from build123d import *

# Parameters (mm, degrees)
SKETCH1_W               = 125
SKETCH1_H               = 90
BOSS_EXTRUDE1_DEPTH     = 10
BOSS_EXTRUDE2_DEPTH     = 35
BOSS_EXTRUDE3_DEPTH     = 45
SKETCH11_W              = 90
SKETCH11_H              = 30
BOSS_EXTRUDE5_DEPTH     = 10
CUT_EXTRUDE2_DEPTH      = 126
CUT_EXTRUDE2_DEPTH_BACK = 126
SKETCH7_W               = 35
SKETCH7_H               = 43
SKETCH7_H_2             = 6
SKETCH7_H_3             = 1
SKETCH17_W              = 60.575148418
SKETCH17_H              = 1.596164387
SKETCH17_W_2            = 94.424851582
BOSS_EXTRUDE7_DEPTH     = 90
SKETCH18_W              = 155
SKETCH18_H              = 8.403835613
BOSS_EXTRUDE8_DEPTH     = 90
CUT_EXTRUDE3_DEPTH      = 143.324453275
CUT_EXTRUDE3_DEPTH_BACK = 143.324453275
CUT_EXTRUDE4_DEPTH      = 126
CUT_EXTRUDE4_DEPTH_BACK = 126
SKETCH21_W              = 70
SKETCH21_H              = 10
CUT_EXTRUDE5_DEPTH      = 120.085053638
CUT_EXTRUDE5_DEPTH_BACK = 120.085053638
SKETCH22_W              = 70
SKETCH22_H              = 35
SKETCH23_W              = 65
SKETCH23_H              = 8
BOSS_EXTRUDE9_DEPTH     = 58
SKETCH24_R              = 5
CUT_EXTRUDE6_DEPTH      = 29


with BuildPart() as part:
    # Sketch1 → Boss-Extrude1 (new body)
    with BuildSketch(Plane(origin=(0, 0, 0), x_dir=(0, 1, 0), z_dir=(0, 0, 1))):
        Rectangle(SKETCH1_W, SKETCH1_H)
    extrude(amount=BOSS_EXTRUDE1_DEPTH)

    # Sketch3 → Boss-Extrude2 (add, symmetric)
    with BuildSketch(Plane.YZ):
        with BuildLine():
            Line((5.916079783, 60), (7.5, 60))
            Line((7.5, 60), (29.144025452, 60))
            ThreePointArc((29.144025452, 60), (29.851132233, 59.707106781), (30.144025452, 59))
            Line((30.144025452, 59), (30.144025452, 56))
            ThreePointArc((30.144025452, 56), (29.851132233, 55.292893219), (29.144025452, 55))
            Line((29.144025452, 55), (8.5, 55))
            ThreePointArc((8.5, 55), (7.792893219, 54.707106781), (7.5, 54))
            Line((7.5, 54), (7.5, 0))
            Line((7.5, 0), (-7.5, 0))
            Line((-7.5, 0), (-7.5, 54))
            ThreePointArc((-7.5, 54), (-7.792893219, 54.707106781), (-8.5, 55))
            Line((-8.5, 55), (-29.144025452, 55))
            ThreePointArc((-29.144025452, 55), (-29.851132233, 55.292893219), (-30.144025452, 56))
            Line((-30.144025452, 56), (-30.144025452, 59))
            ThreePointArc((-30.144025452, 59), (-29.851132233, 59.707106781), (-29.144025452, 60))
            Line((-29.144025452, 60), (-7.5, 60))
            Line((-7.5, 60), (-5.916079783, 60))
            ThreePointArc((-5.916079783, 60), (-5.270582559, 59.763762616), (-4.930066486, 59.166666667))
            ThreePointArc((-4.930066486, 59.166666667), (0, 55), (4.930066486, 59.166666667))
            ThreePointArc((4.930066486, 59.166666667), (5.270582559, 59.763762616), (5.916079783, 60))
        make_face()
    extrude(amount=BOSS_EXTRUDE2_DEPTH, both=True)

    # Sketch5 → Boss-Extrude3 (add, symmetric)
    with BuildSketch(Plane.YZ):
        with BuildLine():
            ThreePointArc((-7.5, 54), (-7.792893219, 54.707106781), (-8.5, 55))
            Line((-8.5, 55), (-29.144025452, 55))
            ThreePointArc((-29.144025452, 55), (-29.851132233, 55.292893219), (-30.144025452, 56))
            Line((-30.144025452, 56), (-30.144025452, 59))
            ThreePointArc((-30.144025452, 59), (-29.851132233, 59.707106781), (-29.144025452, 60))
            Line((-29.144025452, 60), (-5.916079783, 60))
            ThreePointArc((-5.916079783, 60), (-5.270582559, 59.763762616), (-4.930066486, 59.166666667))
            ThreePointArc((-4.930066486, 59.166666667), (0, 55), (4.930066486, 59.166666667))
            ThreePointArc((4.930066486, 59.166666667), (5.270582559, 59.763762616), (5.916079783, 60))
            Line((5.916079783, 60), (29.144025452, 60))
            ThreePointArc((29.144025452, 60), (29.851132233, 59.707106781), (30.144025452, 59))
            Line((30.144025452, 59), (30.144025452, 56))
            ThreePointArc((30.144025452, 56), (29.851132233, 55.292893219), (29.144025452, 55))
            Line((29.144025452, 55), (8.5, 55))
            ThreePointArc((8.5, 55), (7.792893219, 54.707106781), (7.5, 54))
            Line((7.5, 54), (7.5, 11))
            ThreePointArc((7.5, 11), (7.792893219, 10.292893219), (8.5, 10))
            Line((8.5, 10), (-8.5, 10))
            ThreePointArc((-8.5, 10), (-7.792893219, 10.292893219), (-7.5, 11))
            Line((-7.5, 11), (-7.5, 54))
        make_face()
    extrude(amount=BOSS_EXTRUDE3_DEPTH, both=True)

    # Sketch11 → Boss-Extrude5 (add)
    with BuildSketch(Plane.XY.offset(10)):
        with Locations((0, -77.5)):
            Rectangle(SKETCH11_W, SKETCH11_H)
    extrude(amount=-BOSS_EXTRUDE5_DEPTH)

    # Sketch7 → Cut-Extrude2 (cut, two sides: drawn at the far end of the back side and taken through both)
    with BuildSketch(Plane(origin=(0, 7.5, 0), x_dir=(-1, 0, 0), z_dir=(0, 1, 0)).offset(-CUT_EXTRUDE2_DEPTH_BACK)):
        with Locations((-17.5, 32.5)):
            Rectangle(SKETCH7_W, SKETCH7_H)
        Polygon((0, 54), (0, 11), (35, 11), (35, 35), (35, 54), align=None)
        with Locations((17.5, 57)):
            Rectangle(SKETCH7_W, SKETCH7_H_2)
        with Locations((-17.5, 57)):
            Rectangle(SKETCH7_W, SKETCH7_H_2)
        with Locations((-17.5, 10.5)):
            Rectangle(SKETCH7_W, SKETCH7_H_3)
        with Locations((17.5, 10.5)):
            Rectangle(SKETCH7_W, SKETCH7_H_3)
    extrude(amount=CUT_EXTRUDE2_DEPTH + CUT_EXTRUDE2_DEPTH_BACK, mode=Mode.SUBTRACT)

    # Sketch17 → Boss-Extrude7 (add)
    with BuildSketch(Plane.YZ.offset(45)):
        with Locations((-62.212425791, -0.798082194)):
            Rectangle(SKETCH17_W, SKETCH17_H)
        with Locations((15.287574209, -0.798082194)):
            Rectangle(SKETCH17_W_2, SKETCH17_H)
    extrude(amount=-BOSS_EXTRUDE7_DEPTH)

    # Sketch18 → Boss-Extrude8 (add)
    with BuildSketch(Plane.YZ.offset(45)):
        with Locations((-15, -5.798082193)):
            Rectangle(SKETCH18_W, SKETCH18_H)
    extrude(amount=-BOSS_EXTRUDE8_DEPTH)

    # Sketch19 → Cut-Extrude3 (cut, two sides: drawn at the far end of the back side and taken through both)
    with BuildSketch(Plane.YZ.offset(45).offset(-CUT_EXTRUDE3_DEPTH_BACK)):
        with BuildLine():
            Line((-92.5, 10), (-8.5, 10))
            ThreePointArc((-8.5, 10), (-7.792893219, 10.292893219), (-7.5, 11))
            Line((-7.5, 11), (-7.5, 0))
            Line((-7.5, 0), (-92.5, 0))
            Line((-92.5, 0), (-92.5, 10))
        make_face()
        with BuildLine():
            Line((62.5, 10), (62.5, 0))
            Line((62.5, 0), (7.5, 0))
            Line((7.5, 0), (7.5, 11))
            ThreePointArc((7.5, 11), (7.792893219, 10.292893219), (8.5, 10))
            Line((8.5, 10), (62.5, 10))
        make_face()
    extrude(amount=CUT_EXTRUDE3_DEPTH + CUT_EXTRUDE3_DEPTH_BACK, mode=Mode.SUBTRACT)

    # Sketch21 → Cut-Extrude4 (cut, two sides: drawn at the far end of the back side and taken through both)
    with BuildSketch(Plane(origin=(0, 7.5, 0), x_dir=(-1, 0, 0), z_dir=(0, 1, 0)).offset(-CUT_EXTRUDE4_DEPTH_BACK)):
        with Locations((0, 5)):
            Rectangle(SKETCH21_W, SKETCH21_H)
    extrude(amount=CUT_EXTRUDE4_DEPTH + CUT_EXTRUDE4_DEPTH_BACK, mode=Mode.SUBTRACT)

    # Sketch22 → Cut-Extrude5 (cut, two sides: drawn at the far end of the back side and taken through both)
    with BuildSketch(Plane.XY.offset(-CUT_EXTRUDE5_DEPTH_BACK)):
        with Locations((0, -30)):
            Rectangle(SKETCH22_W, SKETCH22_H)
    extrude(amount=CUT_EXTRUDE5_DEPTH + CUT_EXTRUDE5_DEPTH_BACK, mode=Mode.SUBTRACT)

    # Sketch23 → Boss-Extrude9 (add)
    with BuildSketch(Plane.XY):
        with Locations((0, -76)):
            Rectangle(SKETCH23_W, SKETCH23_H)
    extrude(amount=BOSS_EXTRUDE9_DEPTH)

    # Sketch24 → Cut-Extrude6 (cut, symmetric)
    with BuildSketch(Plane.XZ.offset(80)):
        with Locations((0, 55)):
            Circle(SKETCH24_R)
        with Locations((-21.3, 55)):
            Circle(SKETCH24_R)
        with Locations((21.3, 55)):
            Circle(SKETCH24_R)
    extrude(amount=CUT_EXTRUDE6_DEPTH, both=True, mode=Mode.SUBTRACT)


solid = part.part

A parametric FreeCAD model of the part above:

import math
import FreeCAD as App
import Part
import Sketcher
from FreeCAD import Vector


def add_polygon(sketch, points):
    """Adds a closed chain of lines whose ends are joined by coincident constraints."""
    first, n = sketch.GeometryCount, len(points)
    for a, b in zip(points, points[1:] + points[:1]):
        sketch.addGeometry(Part.LineSegment(App.Vector(*a, 0), App.Vector(*b, 0)), False)
    for i in range(n):
        sketch.addConstraint(Sketcher.Constraint("Coincident", first + i, 2, first + (i + 1) % n, 1))

doc = App.newDocument("Part")
params = doc.addObject("Spreadsheet::Sheet", "Params")
for row, (alias, value) in enumerate([
    ("sketch1_width", "90 mm"),
    ("sketch1_height", "125 mm"),
    ("pad1_length", "10 mm"),
    ("sketch2_radius", "1 mm"),
    ("sketch2_radius2", "5 mm"),
    ("sketch2_width", "15 mm"),
    ("sketch2_height", "3 mm"),
    ("sketch2_height2", "54 mm"),
    ("pad2_length", "70 mm"),
    ("sketch3_radius", "1 mm"),
    ("sketch3_radius2", "5 mm"),
    ("sketch3_width", "17 mm"),
    ("sketch3_height", "43 mm"),
    ("sketch3_height2", "3 mm"),
    ("pad3_length", "90 mm"),
    ("sketch4_width", "90 mm"),
    ("sketch4_height", "30 mm"),
    ("pad4_length", "10 mm"),
    ("sketch5_width", "70 mm"),
    ("sketch5_height", "50 mm"),
    ("sketch6_width", "155 mm"),
    ("pad5_length", "90 mm"),
    ("sketch7_width", "155 mm"),
    ("pad6_length", "90 mm"),
    ("sketch8_radius", "1 mm"),
    ("sketch8_width", "84 mm"),
    ("sketch8_width2", "54 mm"),
    ("sketch8_height", "10 mm"),
    ("sketch9_width", "70 mm"),
    ("sketch9_height", "10 mm"),
    ("sketch10_width", "70 mm"),
    ("sketch10_height", "35 mm"),
    ("sketch11_width", "65 mm"),
    ("sketch11_height", "8 mm"),
    ("pad7_length", "58 mm"),
    ("sketch12_diameter", "10 mm"),
    ("pocket5_length", "58 mm"),
], start=1):
    params.set(f"A{row}", alias)
    params.set(f"B{row}", "=" + value)
    params.setAlias(f"B{row}", alias)

body = doc.addObject("PartDesign::Body", "Body")

sketch1 = body.newObject("Sketcher::SketchObject", "Sketch")
sketch1.AttachmentSupport = (doc.getObject("XY_Plane"), [""])
sketch1.MapMode = "FlatFace"
add_polygon(sketch1, [(-45, -62), (45, -62), (45, 62), (-45, 62)])
sketch1.addConstraint(Sketcher.Constraint("Horizontal", 0))
sketch1.addConstraint(Sketcher.Constraint("Vertical", 1))
sketch1.addConstraint(Sketcher.Constraint("Horizontal", 2))
sketch1.addConstraint(Sketcher.Constraint("Vertical", 3))
sketch1.addConstraint(Sketcher.Constraint("Symmetric", 0, 2, 2, 2, -1, 1))
sketch1.addConstraint(Sketcher.Constraint("DistanceX", 0, 1, 0, 2, 90.0))
sketch1.addConstraint(Sketcher.Constraint("DistanceY", 1, 1, 1, 2, 125.0))
sketch1.setExpression("Constraints[9]", "Params.sketch1_width")
sketch1.setExpression("Constraints[10]", "Params.sketch1_height")
pad1 = body.newObject("PartDesign::Pad", "Pad")
pad1.Profile = sketch1
pad1.setExpression("Length", "Params.pad1_length")

sketch2 = body.newObject("Sketcher::SketchObject", "Sketch001")
sketch2.AttachmentSupport = (doc.getObject("YZ_Plane"), [""])
sketch2.MapMode = "FlatFace"
sketch2.addGeometry(Part.LineSegment(Vector(29.1, 60, 0), Vector(5.9, 60, 0)), False)
sketch2.addGeometry(Part.ArcOfCircle(Part.Circle(Vector(5.9, 59, 0), Vector(0, 0, 1), 1), math.radians(90), math.radians(170)), False)
sketch2.addGeometry(Part.ArcOfCircle(Part.Circle(Vector(0, 60, 0), Vector(0, 0, 1), 5), math.radians(-170), math.radians(-10)), False)
sketch2.addGeometry(Part.ArcOfCircle(Part.Circle(Vector(-5.9, 59, 0), Vector(0, 0, 1), 1), math.radians(10), math.radians(90)), False)
sketch2.addGeometry(Part.LineSegment(Vector(-5.9, 60, 0), Vector(-29.1, 60, 0)), False)
sketch2.addGeometry(Part.ArcOfCircle(Part.Circle(Vector(-29.1, 59, 0), Vector(0, 0, 1), 1), math.radians(90), math.radians(180)), False)
sketch2.addGeometry(Part.LineSegment(Vector(-30.1, 59, 0), Vector(-30.1, 56, 0)), False)
sketch2.addGeometry(Part.ArcOfCircle(Part.Circle(Vector(-29.1, 56, 0), Vector(0, 0, 1), 1), math.radians(-180), math.radians(-90)), False)
sketch2.addGeometry(Part.LineSegment(Vector(-29.1, 55, 0), Vector(-8.5, 55, 0)), False)
sketch2.addGeometry(Part.ArcOfCircle(Part.Circle(Vector(-8.5, 54, 0), Vector(0, 0, 1), 1), math.radians(0), math.radians(90)), False)
sketch2.addGeometry(Part.LineSegment(Vector(-7.5, 54, 0), Vector(-7.5, 0, 0)), False)
sketch2.addGeometry(Part.LineSegment(Vector(-7.5, 0, 0), Vector(7.5, 0, 0)), False)
sketch2.addGeometry(Part.LineSegment(Vector(7.5, 0, 0), Vector(7.5, 54, 0)), False)
sketch2.addGeometry(Part.ArcOfCircle(Part.Circle(Vector(8.5, 54, 0), Vector(0, 0, 1), 1), math.radians(90), math.radians(180)), False)
sketch2.addGeometry(Part.LineSegment(Vector(8.5, 55, 0), Vector(29.1, 55, 0)), False)
sketch2.addGeometry(Part.ArcOfCircle(Part.Circle(Vector(29.1, 56, 0), Vector(0, 0, 1), 1), math.radians(-90), math.radians(0)), False)
sketch2.addGeometry(Part.LineSegment(Vector(30.1, 56, 0), Vector(30.1, 59, 0)), False)
sketch2.addGeometry(Part.ArcOfCircle(Part.Circle(Vector(29.1, 59, 0), Vector(0, 0, 1), 1), math.radians(0), math.radians(90)), False)
sketch2.addConstraint(Sketcher.Constraint("Tangent", 0, 2, 1, 1))
sketch2.addConstraint(Sketcher.Constraint("Tangent", 1, 2, 2, 2))
sketch2.addConstraint(Sketcher.Constraint("Tangent", 2, 1, 3, 1))
sketch2.addConstraint(Sketcher.Constraint("Tangent", 3, 2, 4, 1))
sketch2.addConstraint(Sketcher.Constraint("Tangent", 4, 2, 5, 1))
sketch2.addConstraint(Sketcher.Constraint("Tangent", 5, 2, 6, 1))
sketch2.addConstraint(Sketcher.Constraint("Tangent", 6, 2, 7, 1))
sketch2.addConstraint(Sketcher.Constraint("Tangent", 7, 2, 8, 1))
sketch2.addConstraint(Sketcher.Constraint("Tangent", 8, 2, 9, 2))
sketch2.addConstraint(Sketcher.Constraint("Tangent", 9, 1, 10, 1))
sketch2.addConstraint(Sketcher.Constraint("Coincident", 10, 2, 11, 1))
sketch2.addConstraint(Sketcher.Constraint("Coincident", 11, 2, 12, 1))
sketch2.addConstraint(Sketcher.Constraint("Tangent", 12, 2, 13, 2))
sketch2.addConstraint(Sketcher.Constraint("Tangent", 13, 1, 14, 1))
sketch2.addConstraint(Sketcher.Constraint("Tangent", 14, 2, 15, 1))
sketch2.addConstraint(Sketcher.Constraint("Tangent", 15, 2, 16, 1))
sketch2.addConstraint(Sketcher.Constraint("Tangent", 16, 2, 17, 1))
sketch2.addConstraint(Sketcher.Constraint("Tangent", 17, 2, 0, 1))
sketch2.addConstraint(Sketcher.Constraint("Horizontal", 0))
sketch2.addConstraint(Sketcher.Constraint("Horizontal", 4))
sketch2.addConstraint(Sketcher.Constraint("Vertical", 6))
sketch2.addConstraint(Sketcher.Constraint("Horizontal", 8))
sketch2.addConstraint(Sketcher.Constraint("Vertical", 10))
sketch2.addConstraint(Sketcher.Constraint("Horizontal", 11))
sketch2.addConstraint(Sketcher.Constraint("Vertical", 12))
sketch2.addConstraint(Sketcher.Constraint("Horizontal", 14))
sketch2.addConstraint(Sketcher.Constraint("Vertical", 16))
sketch2.addConstraint(Sketcher.Constraint("Equal", 1, 3))
sketch2.addConstraint(Sketcher.Constraint("Equal", 3, 5))
sketch2.addConstraint(Sketcher.Constraint("Equal", 5, 7))
sketch2.addConstraint(Sketcher.Constraint("Equal", 7, 9))
sketch2.addConstraint(Sketcher.Constraint("Equal", 9, 13))
sketch2.addConstraint(Sketcher.Constraint("Equal", 13, 15))
sketch2.addConstraint(Sketcher.Constraint("Equal", 15, 17))
sketch2.addConstraint(Sketcher.Constraint("Symmetric", 10, 2, 11, 2, -1, 1))
sketch2.addConstraint(Sketcher.Constraint("Symmetric", 1, 3, 3, 3, -2))
sketch2.addConstraint(Sketcher.Constraint("Symmetric", 7, 3, 15, 3, -2))
sketch2.addConstraint(Sketcher.Constraint("Horizontal", 2, 3, 0, 2))
sketch2.addConstraint(Sketcher.Constraint("Radius", 1, 1.0))
sketch2.addConstraint(Sketcher.Constraint("Radius", 2, 5.0))
sketch2.addConstraint(Sketcher.Constraint("DistanceX", 11, 1, 11, 2, 15.0))
sketch2.addConstraint(Sketcher.Constraint("DistanceY", 6, 2, 6, 1, 3.0))
sketch2.addConstraint(Sketcher.Constraint("DistanceY", 10, 2, 10, 1, 54.0))
sketch2.addConstraint(Sketcher.Constraint("DistanceX", 0, 2, 0, 1, 23.227946))
sketch2.setExpression("Constraints[38]", "Params.sketch2_radius")
sketch2.setExpression("Constraints[39]", "Params.sketch2_radius2")
sketch2.setExpression("Constraints[40]", "Params.sketch2_width")
sketch2.setExpression("Constraints[41]", "Params.sketch2_height")
sketch2.setExpression("Constraints[42]", "Params.sketch2_height2")
pad2 = body.newObject("PartDesign::Pad", "Pad001")
pad2.Profile = sketch2
pad2.setExpression("Length", "Params.pad2_length")
pad2.Midplane = True

sketch3 = body.newObject("Sketcher::SketchObject", "Sketch002")
sketch3.AttachmentSupport = (doc.getObject("YZ_Plane"), [""])
sketch3.MapMode = "FlatFace"
sketch3.addGeometry(Part.ArcOfCircle(Part.Circle(Vector(-8.5, 54, 0), Vector(0, 0, 1), 1), math.radians(0), math.radians(90)), False)
sketch3.addGeometry(Part.LineSegment(Vector(-7.5, 54, 0), Vector(-7.5, 11, 0)), False)
sketch3.addGeometry(Part.ArcOfCircle(Part.Circle(Vector(-8.5, 11, 0), Vector(0, 0, 1), 1), math.radians(-90), math.radians(0)), False)
sketch3.addGeometry(Part.LineSegment(Vector(-8.5, 10, 0), Vector(8.5, 10, 0)), False)
sketch3.addGeometry(Part.ArcOfCircle(Part.Circle(Vector(8.5, 11, 0), Vector(0, 0, 1), 1), math.radians(-180), math.radians(-90)), False)
sketch3.addGeometry(Part.LineSegment(Vector(7.5, 11, 0), Vector(7.5, 54, 0)), False)
sketch3.addGeometry(Part.ArcOfCircle(Part.Circle(Vector(8.5, 54, 0), Vector(0, 0, 1), 1), math.radians(90), math.radians(180)), False)
sketch3.addGeometry(Part.LineSegment(Vector(8.5, 55, 0), Vector(29.1, 55, 0)), False)
sketch3.addGeometry(Part.ArcOfCircle(Part.Circle(Vector(29.1, 56, 0), Vector(0, 0, 1), 1), math.radians(-90), math.radians(0)), False)
sketch3.addGeometry(Part.LineSegment(Vector(30.1, 56, 0), Vector(30.1, 59, 0)), False)
sketch3.addGeometry(Part.ArcOfCircle(Part.Circle(Vector(29.1, 59, 0), Vector(0, 0, 1), 1), math.radians(0), math.radians(90)), False)
sketch3.addGeometry(Part.LineSegment(Vector(29.1, 60, 0), Vector(5.9, 60, 0)), False)
sketch3.addGeometry(Part.ArcOfCircle(Part.Circle(Vector(5.9, 59, 0), Vector(0, 0, 1), 1), math.radians(90), math.radians(170)), False)
sketch3.addGeometry(Part.ArcOfCircle(Part.Circle(Vector(0, 60, 0), Vector(0, 0, 1), 5), math.radians(-170), math.radians(-10)), False)
sketch3.addGeometry(Part.ArcOfCircle(Part.Circle(Vector(-5.9, 59, 0), Vector(0, 0, 1), 1), math.radians(10), math.radians(90)), False)
sketch3.addGeometry(Part.LineSegment(Vector(-5.9, 60, 0), Vector(-29.1, 60, 0)), False)
sketch3.addGeometry(Part.ArcOfCircle(Part.Circle(Vector(-29.1, 59, 0), Vector(0, 0, 1), 1), math.radians(90), math.radians(180)), False)
sketch3.addGeometry(Part.LineSegment(Vector(-30.1, 59, 0), Vector(-30.1, 56, 0)), False)
sketch3.addGeometry(Part.ArcOfCircle(Part.Circle(Vector(-29.1, 56, 0), Vector(0, 0, 1), 1), math.radians(-180), math.radians(-90)), False)
sketch3.addGeometry(Part.LineSegment(Vector(-29.1, 55, 0), Vector(-8.5, 55, 0)), False)
sketch3.addConstraint(Sketcher.Constraint("Tangent", 0, 1, 1, 1))
sketch3.addConstraint(Sketcher.Constraint("Tangent", 1, 2, 2, 2))
sketch3.addConstraint(Sketcher.Constraint("Tangent", 2, 1, 3, 1))
sketch3.addConstraint(Sketcher.Constraint("Tangent", 3, 2, 4, 2))
sketch3.addConstraint(Sketcher.Constraint("Tangent", 4, 1, 5, 1))
sketch3.addConstraint(Sketcher.Constraint("Tangent", 5, 2, 6, 2))
sketch3.addConstraint(Sketcher.Constraint("Tangent", 6, 1, 7, 1))
sketch3.addConstraint(Sketcher.Constraint("Tangent", 7, 2, 8, 1))
sketch3.addConstraint(Sketcher.Constraint("Tangent", 8, 2, 9, 1))
sketch3.addConstraint(Sketcher.Constraint("Tangent", 9, 2, 10, 1))
sketch3.addConstraint(Sketcher.Constraint("Tangent", 10, 2, 11, 1))
sketch3.addConstraint(Sketcher.Constraint("Tangent", 11, 2, 12, 1))
sketch3.addConstraint(Sketcher.Constraint("Tangent", 12, 2, 13, 2))
sketch3.addConstraint(Sketcher.Constraint("Tangent", 13, 1, 14, 1))
sketch3.addConstraint(Sketcher.Constraint("Tangent", 14, 2, 15, 1))
sketch3.addConstraint(Sketcher.Constraint("Tangent", 15, 2, 16, 1))
sketch3.addConstraint(Sketcher.Constraint("Tangent", 16, 2, 17, 1))
sketch3.addConstraint(Sketcher.Constraint("Tangent", 17, 2, 18, 1))
sketch3.addConstraint(Sketcher.Constraint("Tangent", 18, 2, 19, 1))
sketch3.addConstraint(Sketcher.Constraint("Tangent", 19, 2, 0, 2))
sketch3.addConstraint(Sketcher.Constraint("Vertical", 1))
sketch3.addConstraint(Sketcher.Constraint("Horizontal", 3))
sketch3.addConstraint(Sketcher.Constraint("Vertical", 5))
sketch3.addConstraint(Sketcher.Constraint("Horizontal", 7))
sketch3.addConstraint(Sketcher.Constraint("Vertical", 9))
sketch3.addConstraint(Sketcher.Constraint("Horizontal", 11))
sketch3.addConstraint(Sketcher.Constraint("Horizontal", 15))
sketch3.addConstraint(Sketcher.Constraint("Vertical", 17))
sketch3.addConstraint(Sketcher.Constraint("Horizontal", 19))
sketch3.addConstraint(Sketcher.Constraint("Equal", 0, 2))
sketch3.addConstraint(Sketcher.Constraint("Equal", 2, 4))
sketch3.addConstraint(Sketcher.Constraint("Equal", 4, 6))
sketch3.addConstraint(Sketcher.Constraint("Equal", 6, 8))
sketch3.addConstraint(Sketcher.Constraint("Equal", 8, 10))
sketch3.addConstraint(Sketcher.Constraint("Equal", 10, 12))
sketch3.addConstraint(Sketcher.Constraint("Equal", 12, 14))
sketch3.addConstraint(Sketcher.Constraint("Equal", 14, 16))
sketch3.addConstraint(Sketcher.Constraint("Equal", 16, 18))
sketch3.addConstraint(Sketcher.Constraint("Symmetric", 0, 3, 6, 3, -2))
sketch3.addConstraint(Sketcher.Constraint("Symmetric", 12, 3, 14, 3, -2))
sketch3.addConstraint(Sketcher.Constraint("Horizontal", 13, 3, 10, 2))
sketch3.addConstraint(Sketcher.Constraint("Equal", 11, 15))
sketch3.addConstraint(Sketcher.Constraint("Radius", 0, 1.0))
sketch3.addConstraint(Sketcher.Constraint("Radius", 13, 5.0))
sketch3.addConstraint(Sketcher.Constraint("DistanceX", 3, 1, 3, 2, 17.0))
sketch3.addConstraint(Sketcher.Constraint("DistanceY", 1, 2, 1, 1, 43.0))
sketch3.addConstraint(Sketcher.Constraint("DistanceY", 9, 1, 9, 2, 3.0))
sketch3.addConstraint(Sketcher.Constraint("DistanceY", -1, 1, 0, 3, 54.0))
sketch3.addConstraint(Sketcher.Constraint("DistanceX", 7, 1, 7, 2, 20.644025))
sketch3.setExpression("Constraints[42]", "Params.sketch3_radius")
sketch3.setExpression("Constraints[43]", "Params.sketch3_radius2")
sketch3.setExpression("Constraints[44]", "Params.sketch3_width")
sketch3.setExpression("Constraints[45]", "Params.sketch3_height")
sketch3.setExpression("Constraints[46]", "Params.sketch3_height2")
pad3 = body.newObject("PartDesign::Pad", "Pad002")
pad3.Profile = sketch3
pad3.setExpression("Length", "Params.pad3_length")
pad3.Midplane = True

sketch4 = body.newObject("Sketcher::SketchObject", "Sketch003")
sketch4.AttachmentSupport = (doc.getObject("XY_Plane"), [""])
sketch4.MapMode = "FlatFace"
sketch4.AttachmentOffset = App.Placement(Vector(0, 0, 10), App.Rotation())
add_polygon(sketch4, [(-45, -62), (-45, -92), (45, -92), (45, -62)])
sketch4.addConstraint(Sketcher.Constraint("Vertical", 0))
sketch4.addConstraint(Sketcher.Constraint("Horizontal", 1))
sketch4.addConstraint(Sketcher.Constraint("Vertical", 2))
sketch4.addConstraint(Sketcher.Constraint("Horizontal", 3))
sketch4.addConstraint(Sketcher.Constraint("DistanceX", 1, 1, 1, 2, 90.0))
sketch4.addConstraint(Sketcher.Constraint("DistanceY", 0, 2, 0, 1, 30.0))
sketch4.addConstraint(Sketcher.Constraint("DistanceX", 0, 2, -1, 1, 45.0))
sketch4.addConstraint(Sketcher.Constraint("DistanceY", 0, 2, -1, 1, 92.5))
sketch4.setExpression("Constraints[8]", "Params.sketch4_width")
sketch4.setExpression("Constraints[9]", "Params.sketch4_height")
pad4 = body.newObject("PartDesign::Pad", "Pad003")
pad4.Profile = sketch4
pad4.setExpression("Length", "Params.pad4_length")
pad4.Reversed = True

sketch5 = body.newObject("Sketcher::SketchObject", "Sketch004")
sketch5.AttachmentSupport = (doc.getObject("XZ_Plane"), [""])
sketch5.MapMode = "FlatFace"
sketch5.AttachmentOffset = App.Placement(Vector(0, 0, -7.5), App.Rotation())
add_polygon(sketch5, [(-35, 60), (35, 60), (35, 10), (-35, 10)])
sketch5.addConstraint(Sketcher.Constraint("Horizontal", 0))
sketch5.addConstraint(Sketcher.Constraint("Vertical", 1))
sketch5.addConstraint(Sketcher.Constraint("Horizontal", 2))
sketch5.addConstraint(Sketcher.Constraint("Vertical", 3))
sketch5.addConstraint(Sketcher.Constraint("DistanceX", 0, 1, 0, 2, 70.0))
sketch5.addConstraint(Sketcher.Constraint("DistanceY", 1, 2, 1, 1, 50.0))
sketch5.addConstraint(Sketcher.Constraint("DistanceX", -1, 1, 0, 2, 35.0))
sketch5.addConstraint(Sketcher.Constraint("DistanceY", -1, 1, 0, 2, 60.0))
sketch5.setExpression("Constraints[8]", "Params.sketch5_width")
sketch5.setExpression("Constraints[9]", "Params.sketch5_height")
pocket1 = body.newObject("PartDesign::Pocket", "Pocket")
pocket1.Profile = sketch5
pocket1.Type = "ThroughAll"
pocket1.Midplane = True

sketch6 = body.newObject("Sketcher::SketchObject", "Sketch005")
sketch6.AttachmentSupport = (doc.getObject("YZ_Plane"), [""])
sketch6.MapMode = "FlatFace"
sketch6.AttachmentOffset = App.Placement(Vector(0, 0, 45), App.Rotation())
add_polygon(sketch6, [(-92.5, 0), (-92.5, -1.6), (62.5, -1.6), (62.5, 0)])
sketch6.addConstraint(Sketcher.Constraint("Vertical", 0))
sketch6.addConstraint(Sketcher.Constraint("Horizontal", 1))
sketch6.addConstraint(Sketcher.Constraint("Vertical", 2))
sketch6.addConstraint(Sketcher.Constraint("Horizontal", 3))
sketch6.addConstraint(Sketcher.Constraint("PointOnObject", 2, 2, -1))
sketch6.addConstraint(Sketcher.Constraint("DistanceX", 1, 1, 1, 2, 155.0))
sketch6.addConstraint(Sketcher.Constraint("DistanceX", 0, 2, -1, 1, 92.5))
sketch6.addConstraint(Sketcher.Constraint("DistanceY", 0, 2, 0, 1, 1.596164))
sketch6.setExpression("Constraints[9]", "Params.sketch6_width")
pad5 = body.newObject("PartDesign::Pad", "Pad004")
pad5.Profile = sketch6
pad5.setExpression("Length", "Params.pad5_length")
pad5.Reversed = True

sketch7 = body.newObject("Sketcher::SketchObject", "Sketch006")
sketch7.AttachmentSupport = (doc.getObject("YZ_Plane"), [""])
sketch7.MapMode = "FlatFace"
sketch7.AttachmentOffset = App.Placement(Vector(0, 0, 45), App.Rotation())
add_polygon(sketch7, [(-92, -2), (-92, -10), (62, -10), (62, -2)])
sketch7.addConstraint(Sketcher.Constraint("Vertical", 0))
sketch7.addConstraint(Sketcher.Constraint("Horizontal", 1))
sketch7.addConstraint(Sketcher.Constraint("Vertical", 2))
sketch7.addConstraint(Sketcher.Constraint("Horizontal", 3))
sketch7.addConstraint(Sketcher.Constraint("DistanceX", 1, 1, 1, 2, 155.0))
sketch7.addConstraint(Sketcher.Constraint("DistanceY", 0, 2, -1, 1, 10.0))
sketch7.addConstraint(Sketcher.Constraint("DistanceX", 0, 2, -1, 1, 92.5))
sketch7.addConstraint(Sketcher.Constraint("DistanceY", 0, 2, 0, 1, 8.403836))
sketch7.setExpression("Constraints[8]", "Params.sketch7_width")
pad6 = body.newObject("PartDesign::Pad", "Pad005")
pad6.Profile = sketch7
pad6.setExpression("Length", "Params.pad6_length")
pad6.Reversed = True

sketch8 = body.newObject("Sketcher::SketchObject", "Sketch007")
sketch8.AttachmentSupport = (doc.getObject("YZ_Plane"), [""])
sketch8.MapMode = "FlatFace"
sketch8.AttachmentOffset = App.Placement(Vector(0, 0, 45), App.Rotation())
sketch8.addGeometry(Part.LineSegment(Vector(-8.5, 10, 0), Vector(-92.5, 10, 0)), False)
sketch8.addGeometry(Part.LineSegment(Vector(-92.5, 10, 0), Vector(-92.5, 0, 0)), False)
sketch8.addGeometry(Part.LineSegment(Vector(-92.5, 0, 0), Vector(-7.5, 0, 0)), False)
sketch8.addGeometry(Part.LineSegment(Vector(-7.5, 0, 0), Vector(-7.5, 11, 0)), False)
sketch8.addGeometry(Part.ArcOfCircle(Part.Circle(Vector(-8.5, 11, 0), Vector(0, 0, 1), 1), math.radians(-90), math.radians(0)), False)
sketch8.addGeometry(Part.LineSegment(Vector(62.5, 0, 0), Vector(62.5, 10, 0)), False)
sketch8.addGeometry(Part.LineSegment(Vector(62.5, 10, 0), Vector(8.5, 10, 0)), False)
sketch8.addGeometry(Part.ArcOfCircle(Part.Circle(Vector(8.5, 11, 0), Vector(0, 0, 1), 1), math.radians(-180), math.radians(-90)), False)
sketch8.addGeometry(Part.LineSegment(Vector(7.5, 11, 0), Vector(7.5, 0, 0)), False)
sketch8.addGeometry(Part.LineSegment(Vector(7.5, 0, 0), Vector(62.5, 0, 0)), False)
sketch8.addConstraint(Sketcher.Constraint("Coincident", 0, 2, 1, 1))
sketch8.addConstraint(Sketcher.Constraint("Coincident", 1, 2, 2, 1))
sketch8.addConstraint(Sketcher.Constraint("Coincident", 2, 2, 3, 1))
sketch8.addConstraint(Sketcher.Constraint("Tangent", 3, 2, 4, 2))
sketch8.addConstraint(Sketcher.Constraint("Tangent", 4, 1, 0, 1))
sketch8.addConstraint(Sketcher.Constraint("Coincident", 5, 2, 6, 1))
sketch8.addConstraint(Sketcher.Constraint("Tangent", 6, 2, 7, 2))
sketch8.addConstraint(Sketcher.Constraint("Tangent", 7, 1, 8, 1))
sketch8.addConstraint(Sketcher.Constraint("Coincident", 8, 2, 9, 1))
sketch8.addConstraint(Sketcher.Constraint("Coincident", 9, 2, 5, 1))
sketch8.addConstraint(Sketcher.Constraint("Horizontal", 0))
sketch8.addConstraint(Sketcher.Constraint("Vertical", 1))
sketch8.addConstraint(Sketcher.Constraint("Horizontal", 2))
sketch8.addConstraint(Sketcher.Constraint("Vertical", 3))
sketch8.addConstraint(Sketcher.Constraint("Vertical", 5))
sketch8.addConstraint(Sketcher.Constraint("Horizontal", 6))
sketch8.addConstraint(Sketcher.Constraint("Vertical", 8))
sketch8.addConstraint(Sketcher.Constraint("Horizontal", 9))
sketch8.addConstraint(Sketcher.Constraint("Equal", 4, 7))
sketch8.addConstraint(Sketcher.Constraint("Symmetric", 2, 2, 8, 2, -1, 1))
sketch8.addConstraint(Sketcher.Constraint("PointOnObject", 1, 2, -1))
sketch8.addConstraint(Sketcher.Constraint("Horizontal", 4, 3, 7, 3))
sketch8.addConstraint(Sketcher.Constraint("Radius", 4, 1.0))
sketch8.addConstraint(Sketcher.Constraint("DistanceX", 0, 2, 0, 1, 84.0))
sketch8.addConstraint(Sketcher.Constraint("DistanceX", 6, 2, 6, 1, 54.0))
sketch8.addConstraint(Sketcher.Constraint("DistanceY", 1, 2, 1, 1, 10.0))
sketch8.addConstraint(Sketcher.Constraint("DistanceX", 4, 3, 7, 3, 17.0))
sketch8.setExpression("Constraints[22]", "Params.sketch8_radius")
sketch8.setExpression("Constraints[23]", "Params.sketch8_width")
sketch8.setExpression("Constraints[24]", "Params.sketch8_width2")
sketch8.setExpression("Constraints[25]", "Params.sketch8_height")
pocket2 = body.newObject("PartDesign::Pocket", "Pocket001")
pocket2.Profile = sketch8
pocket2.Type = "ThroughAll"
pocket2.Midplane = True

sketch9 = body.newObject("Sketcher::SketchObject", "Sketch008")
sketch9.AttachmentSupport = (doc.getObject("XZ_Plane"), [""])
sketch9.MapMode = "FlatFace"
sketch9.AttachmentOffset = App.Placement(Vector(0, 0, -7.5), App.Rotation())
add_polygon(sketch9, [(35, 10), (35, 0), (-35, 0), (-35, 10)])
sketch9.addConstraint(Sketcher.Constraint("Vertical", 0))
sketch9.addConstraint(Sketcher.Constraint("Horizontal", 1))
sketch9.addConstraint(Sketcher.Constraint("Vertical", 2))
sketch9.addConstraint(Sketcher.Constraint("Horizontal", 3))
sketch9.addConstraint(Sketcher.Constraint("Symmetric", 0, 2, 1, 2, -1, 1))
sketch9.addConstraint(Sketcher.Constraint("DistanceX", 1, 2, 1, 1, 70.0))
sketch9.addConstraint(Sketcher.Constraint("DistanceY", 0, 2, 0, 1, 10.0))
sketch9.setExpression("Constraints[9]", "Params.sketch9_width")
sketch9.setExpression("Constraints[10]", "Params.sketch9_height")
pocket3 = body.newObject("PartDesign::Pocket", "Pocket002")
pocket3.Profile = sketch9
pocket3.Type = "ThroughAll"
pocket3.Midplane = True

sketch10 = body.newObject("Sketcher::SketchObject", "Sketch009")
sketch10.AttachmentSupport = (doc.getObject("XY_Plane"), [""])
sketch10.MapMode = "FlatFace"
add_polygon(sketch10, [(-35, -12), (-35, -48), (35, -48), (35, -12)])
sketch10.addConstraint(Sketcher.Constraint("Vertical", 0))
sketch10.addConstraint(Sketcher.Constraint("Horizontal", 1))
sketch10.addConstraint(Sketcher.Constraint("Vertical", 2))
sketch10.addConstraint(Sketcher.Constraint("Horizontal", 3))
sketch10.addConstraint(Sketcher.Constraint("DistanceX", 1, 1, 1, 2, 70.0))
sketch10.addConstraint(Sketcher.Constraint("DistanceY", 0, 2, 0, 1, 35.0))
sketch10.addConstraint(Sketcher.Constraint("DistanceX", 0, 2, -1, 1, 35.0))
sketch10.addConstraint(Sketcher.Constraint("DistanceY", 0, 2, -1, 1, 47.5))
sketch10.setExpression("Constraints[8]", "Params.sketch10_width")
sketch10.setExpression("Constraints[9]", "Params.sketch10_height")
pocket4 = body.newObject("PartDesign::Pocket", "Pocket003")
pocket4.Profile = sketch10
pocket4.Type = "ThroughAll"
pocket4.Midplane = True

sketch11 = body.newObject("Sketcher::SketchObject", "Sketch010")
sketch11.AttachmentSupport = (doc.getObject("XY_Plane"), [""])
sketch11.MapMode = "FlatFace"
add_polygon(sketch11, [(-32, -72), (-32, -80), (32, -80), (32, -72)])
sketch11.addConstraint(Sketcher.Constraint("Vertical", 0))
sketch11.addConstraint(Sketcher.Constraint("Horizontal", 1))
sketch11.addConstraint(Sketcher.Constraint("Vertical", 2))
sketch11.addConstraint(Sketcher.Constraint("Horizontal", 3))
sketch11.addConstraint(Sketcher.Constraint("DistanceX", 1, 1, 1, 2, 65.0))
sketch11.addConstraint(Sketcher.Constraint("DistanceY", 0, 2, 0, 1, 8.0))
sketch11.addConstraint(Sketcher.Constraint("DistanceY", 0, 2, -1, 1, 80.0))
sketch11.addConstraint(Sketcher.Constraint("DistanceX", 0, 2, -1, 1, 32.5))
sketch11.setExpression("Constraints[8]", "Params.sketch11_width")
sketch11.setExpression("Constraints[9]", "Params.sketch11_height")
pad7 = body.newObject("PartDesign::Pad", "Pad006")
pad7.Profile = sketch11
pad7.setExpression("Length", "Params.pad7_length")

sketch12 = body.newObject("Sketcher::SketchObject", "Sketch011")
sketch12.AttachmentSupport = (doc.getObject("XZ_Plane"), [""])
sketch12.MapMode = "FlatFace"
sketch12.AttachmentOffset = App.Placement(Vector(0, 0, 80), App.Rotation())
sketch12.addGeometry(Part.Circle(Vector(0, 55, 0), Vector(0, 0, 1), 5), False)
sketch12.addGeometry(Part.Circle(Vector(-21, 55, 0), Vector(0, 0, 1), 5), False)
sketch12.addGeometry(Part.Circle(Vector(21, 55, 0), Vector(0, 0, 1), 5), False)
sketch12.addConstraint(Sketcher.Constraint("Equal", 0, 1))
sketch12.addConstraint(Sketcher.Constraint("Equal", 1, 2))
sketch12.addConstraint(Sketcher.Constraint("Symmetric", 1, 3, 2, 3, -2))
sketch12.addConstraint(Sketcher.Constraint("PointOnObject", 0, 3, -2))
sketch12.addConstraint(Sketcher.Constraint("Horizontal", 0, 3, 1, 3))
sketch12.addConstraint(Sketcher.Constraint("Diameter", 0, 10.0))
sketch12.addConstraint(Sketcher.Constraint("DistanceY", -1, 1, 0, 3, 55.0))
sketch12.addConstraint(Sketcher.Constraint("DistanceX", 1, 3, -1, 1, 21.3))
sketch12.setExpression("Constraints[5]", "Params.sketch12_diameter")
pocket5 = body.newObject("PartDesign::Pocket", "Pocket004")
pocket5.Profile = sketch12
pocket5.setExpression("Length", "Params.pocket5_length")
pocket5.Midplane = True

doc.recompute()
